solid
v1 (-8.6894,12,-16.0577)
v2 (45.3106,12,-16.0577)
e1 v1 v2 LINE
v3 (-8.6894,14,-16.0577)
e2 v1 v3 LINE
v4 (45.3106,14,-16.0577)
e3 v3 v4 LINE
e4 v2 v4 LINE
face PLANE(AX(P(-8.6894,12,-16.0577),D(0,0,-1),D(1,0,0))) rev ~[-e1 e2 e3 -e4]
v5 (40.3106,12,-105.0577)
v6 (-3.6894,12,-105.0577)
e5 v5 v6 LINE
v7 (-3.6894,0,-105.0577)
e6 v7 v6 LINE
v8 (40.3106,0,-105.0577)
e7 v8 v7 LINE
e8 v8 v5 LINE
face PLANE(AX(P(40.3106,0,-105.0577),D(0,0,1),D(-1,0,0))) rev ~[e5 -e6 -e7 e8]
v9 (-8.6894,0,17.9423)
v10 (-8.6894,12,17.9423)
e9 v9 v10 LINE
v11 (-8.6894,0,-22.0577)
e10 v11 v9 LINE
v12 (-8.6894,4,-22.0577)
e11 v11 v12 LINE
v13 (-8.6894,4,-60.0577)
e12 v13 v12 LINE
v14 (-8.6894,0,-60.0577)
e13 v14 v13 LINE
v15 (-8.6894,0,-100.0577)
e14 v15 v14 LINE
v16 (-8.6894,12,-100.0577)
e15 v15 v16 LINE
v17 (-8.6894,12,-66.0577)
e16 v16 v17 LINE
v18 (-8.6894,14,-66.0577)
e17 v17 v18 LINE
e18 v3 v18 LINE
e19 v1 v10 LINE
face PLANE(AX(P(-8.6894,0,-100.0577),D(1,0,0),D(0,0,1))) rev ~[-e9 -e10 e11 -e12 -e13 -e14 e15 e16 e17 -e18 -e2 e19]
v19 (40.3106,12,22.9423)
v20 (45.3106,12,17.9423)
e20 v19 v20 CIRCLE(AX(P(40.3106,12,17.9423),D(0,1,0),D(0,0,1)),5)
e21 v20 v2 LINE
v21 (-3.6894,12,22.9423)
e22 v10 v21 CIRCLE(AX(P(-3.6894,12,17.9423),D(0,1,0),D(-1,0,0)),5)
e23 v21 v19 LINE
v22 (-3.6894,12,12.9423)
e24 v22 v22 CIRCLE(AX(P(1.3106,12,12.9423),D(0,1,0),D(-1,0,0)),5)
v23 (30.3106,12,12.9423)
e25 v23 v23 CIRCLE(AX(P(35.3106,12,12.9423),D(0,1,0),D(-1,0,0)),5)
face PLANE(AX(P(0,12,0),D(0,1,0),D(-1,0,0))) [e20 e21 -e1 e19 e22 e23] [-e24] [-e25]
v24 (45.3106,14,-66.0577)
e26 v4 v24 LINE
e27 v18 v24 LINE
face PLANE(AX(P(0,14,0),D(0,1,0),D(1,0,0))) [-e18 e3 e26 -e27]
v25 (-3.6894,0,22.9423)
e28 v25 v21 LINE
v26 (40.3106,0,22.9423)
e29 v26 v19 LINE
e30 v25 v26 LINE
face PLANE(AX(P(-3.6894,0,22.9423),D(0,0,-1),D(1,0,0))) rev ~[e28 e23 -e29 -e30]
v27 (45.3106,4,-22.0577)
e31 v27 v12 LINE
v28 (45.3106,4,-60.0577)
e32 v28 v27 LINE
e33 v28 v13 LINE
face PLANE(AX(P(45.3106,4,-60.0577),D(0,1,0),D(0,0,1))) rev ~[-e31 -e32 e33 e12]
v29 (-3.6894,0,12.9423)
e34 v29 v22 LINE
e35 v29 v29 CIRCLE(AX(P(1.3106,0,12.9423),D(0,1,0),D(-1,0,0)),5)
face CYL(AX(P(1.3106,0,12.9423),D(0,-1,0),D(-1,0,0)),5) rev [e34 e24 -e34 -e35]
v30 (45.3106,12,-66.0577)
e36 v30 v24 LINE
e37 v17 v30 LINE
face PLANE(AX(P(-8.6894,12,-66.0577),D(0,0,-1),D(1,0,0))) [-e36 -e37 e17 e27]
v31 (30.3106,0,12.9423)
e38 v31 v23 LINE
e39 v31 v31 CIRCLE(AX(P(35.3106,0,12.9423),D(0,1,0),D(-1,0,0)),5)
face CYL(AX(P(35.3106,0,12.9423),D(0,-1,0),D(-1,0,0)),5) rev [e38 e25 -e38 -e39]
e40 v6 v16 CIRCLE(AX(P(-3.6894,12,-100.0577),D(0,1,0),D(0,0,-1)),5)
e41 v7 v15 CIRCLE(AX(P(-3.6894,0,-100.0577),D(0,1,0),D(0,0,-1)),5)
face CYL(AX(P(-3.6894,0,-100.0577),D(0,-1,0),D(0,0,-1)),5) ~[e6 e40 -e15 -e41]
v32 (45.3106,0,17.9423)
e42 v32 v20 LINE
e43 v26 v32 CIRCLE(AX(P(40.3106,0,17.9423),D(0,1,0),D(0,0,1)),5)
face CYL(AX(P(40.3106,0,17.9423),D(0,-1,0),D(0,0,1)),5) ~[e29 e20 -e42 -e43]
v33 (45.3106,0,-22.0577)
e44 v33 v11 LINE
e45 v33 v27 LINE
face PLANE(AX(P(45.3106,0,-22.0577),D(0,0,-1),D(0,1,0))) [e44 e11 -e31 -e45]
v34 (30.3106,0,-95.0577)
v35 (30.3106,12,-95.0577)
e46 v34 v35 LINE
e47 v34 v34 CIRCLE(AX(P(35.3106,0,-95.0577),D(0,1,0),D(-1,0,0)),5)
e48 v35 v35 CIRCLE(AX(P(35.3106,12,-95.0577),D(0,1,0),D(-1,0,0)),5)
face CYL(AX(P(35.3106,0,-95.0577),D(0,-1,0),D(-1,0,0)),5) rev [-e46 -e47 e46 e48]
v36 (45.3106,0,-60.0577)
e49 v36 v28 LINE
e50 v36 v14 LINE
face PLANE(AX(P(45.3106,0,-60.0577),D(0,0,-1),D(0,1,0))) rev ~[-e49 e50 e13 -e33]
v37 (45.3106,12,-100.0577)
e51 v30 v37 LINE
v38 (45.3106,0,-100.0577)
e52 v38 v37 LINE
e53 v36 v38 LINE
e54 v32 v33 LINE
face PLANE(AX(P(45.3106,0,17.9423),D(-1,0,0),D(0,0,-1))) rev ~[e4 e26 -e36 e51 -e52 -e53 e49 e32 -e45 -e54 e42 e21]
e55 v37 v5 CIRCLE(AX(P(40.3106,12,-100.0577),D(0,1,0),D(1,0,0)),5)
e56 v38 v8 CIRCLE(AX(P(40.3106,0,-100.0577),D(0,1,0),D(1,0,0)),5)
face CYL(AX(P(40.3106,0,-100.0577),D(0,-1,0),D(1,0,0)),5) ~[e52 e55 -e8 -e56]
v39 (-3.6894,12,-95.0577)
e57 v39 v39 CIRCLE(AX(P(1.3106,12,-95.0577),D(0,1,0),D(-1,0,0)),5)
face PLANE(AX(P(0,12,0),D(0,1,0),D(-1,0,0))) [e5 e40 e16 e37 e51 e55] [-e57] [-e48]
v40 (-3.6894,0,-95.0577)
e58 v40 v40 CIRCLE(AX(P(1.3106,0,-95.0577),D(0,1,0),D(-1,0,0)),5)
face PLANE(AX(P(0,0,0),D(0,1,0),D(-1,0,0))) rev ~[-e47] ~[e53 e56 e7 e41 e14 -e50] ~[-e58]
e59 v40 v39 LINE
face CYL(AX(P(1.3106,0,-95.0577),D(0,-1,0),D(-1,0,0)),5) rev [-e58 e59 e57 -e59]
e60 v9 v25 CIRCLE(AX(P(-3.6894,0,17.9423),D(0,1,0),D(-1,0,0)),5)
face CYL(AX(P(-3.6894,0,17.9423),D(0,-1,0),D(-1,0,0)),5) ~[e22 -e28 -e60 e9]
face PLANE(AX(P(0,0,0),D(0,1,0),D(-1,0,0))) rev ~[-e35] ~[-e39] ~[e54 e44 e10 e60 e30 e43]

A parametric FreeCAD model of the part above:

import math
import FreeCAD as App
import Part
import Sketcher
Q = App.Units.Quantity

doc = App.newDocument("Part")
body = doc.addObject("PartDesign::Body", "Body")

# Sketch on XZ plane
sketch1 = doc.addObject("Sketcher::SketchObject", "Sketch")
body.addObject(sketch1)
sketch1.AttachmentSupport = (doc.XZ_Plane, [""])
sketch1.MapMode = "FlatFace"
sketch1.addGeometry([
    Part.ArcOfCircle(Part.Circle(App.Vector(-3.7, 17.9, 0), App.Vector(0, 0, 1), 5), math.radians(90), math.radians(180)),  # 0
    Part.LineSegment(App.Vector(-3.7, 22.9, 0), App.Vector(40.3, 22.9, 0)),  # 1
    Part.ArcOfCircle(Part.Circle(App.Vector(40.3, 17.9, 0), App.Vector(0, 0, 1), 5), math.radians(0), math.radians(90)),  # 2
    Part.LineSegment(App.Vector(45.3, 17.9, 0), App.Vector(45.3, -100.1, 0)),  # 3
    Part.ArcOfCircle(Part.Circle(App.Vector(40.3, -100.1, 0), App.Vector(0, 0, 1), 5), math.radians(-90), math.radians(0)),  # 4
    Part.LineSegment(App.Vector(40.3, -105.1, 0), App.Vector(-3.7, -105.1, 0)),  # 5
    Part.ArcOfCircle(Part.Circle(App.Vector(-3.7, -100.1, 0), App.Vector(0, 0, 1), 5), math.radians(180), math.radians(270)),  # 6
    Part.LineSegment(App.Vector(-8.7, -100.1, 0), App.Vector(-8.7, 17.9, 0)),  # 7
    Part.Circle(App.Vector(35.3, -95.1, 0), App.Vector(0, 0, 1), 5),  # 8
    Part.Circle(App.Vector(1.3, -95.1, 0), App.Vector(0, 0, 1), 5),  # 9
    Part.Circle(App.Vector(35.3, 12.9, 0), App.Vector(0, 0, 1), 5),  # 10
    Part.Circle(App.Vector(1.3, 12.9, 0), App.Vector(0, 0, 1), 5),  # 11
], False)
sketch1.addConstraint([
    Sketcher.Constraint("Tangent", 0, 1, 1, 1),
    Sketcher.Constraint("Tangent", 1, 2, 2, 2),
    Sketcher.Constraint("Tangent", 2, 1, 3, 1),
    Sketcher.Constraint("Tangent", 3, 2, 4, 2),
    Sketcher.Constraint("Tangent", 4, 1, 5, 1),
    Sketcher.Constraint("Tangent", 5, 2, 6, 2),
    Sketcher.Constraint("Tangent", 6, 1, 7, 1),
    Sketcher.Constraint("Tangent", 7, 2, 0, 2),
    Sketcher.Constraint("Horizontal", 1),
    Sketcher.Constraint("Vertical", 3),
    Sketcher.Constraint("Horizontal", 5),
    Sketcher.Constraint("Vertical", 7),
    Sketcher.Constraint("Equal", 0, 2),
    Sketcher.Constraint("Equal", 2, 4),
    Sketcher.Constraint("Equal", 4, 6),
    Sketcher.Constraint("Equal", 6, 8),
    Sketcher.Constraint("Equal", 8, 9),
    Sketcher.Constraint("Equal", 9, 10),
    Sketcher.Constraint("Equal", 10, 11),
    Sketcher.Constraint("Horizontal", 8, 3, 9, 3),
    Sketcher.Constraint("Horizontal", 10, 3, 11, 3),
    Sketcher.Constraint("Vertical", 8, 3, 10, 3),
    Sketcher.Constraint("Vertical", 9, 3, 11, 3),
    Sketcher.Constraint("Diameter", 8, Q("10 mm")),
    Sketcher.Constraint("DistanceX", 8, 3, 4, 3, Q("5 mm")),
    Sketcher.Constraint("DistanceY", 4, 3, 8, 3, Q("5 mm")),
    Sketcher.Constraint("DistanceX", 6, 3, 9, 3, Q("5 mm")),
    Sketcher.Constraint("DistanceY", 10, 3, 2, 3, Q("5 mm")),
    Sketcher.Constraint("DistanceX", 1, 1, 1, 2, Q("44 mm")),
    Sketcher.Constraint("DistanceY", 3, 2, 3, 1, Q("118 mm")),
    Sketcher.Constraint("DistanceX", 0, 3, -1, 1, Q("3.6894 mm")),
    Sketcher.Constraint("DistanceY", -1, 1, 0, 3, Q("17.9423 mm")),
])
pad1 = doc.addObject("PartDesign::Pad", "Pad")
body.addObject(pad1)
pad1.Profile = sketch1
pad1.Length = 12
pad1.Reversed = True

# Sketch on XZ plane
sketch2 = doc.addObject("Sketcher::SketchObject", "Sketch001")
body.addObject(sketch2)
sketch2.AttachmentSupport = (doc.XZ_Plane, [""])
sketch2.MapMode = "FlatFace"
sketch2.AttachmentOffset = App.Placement(App.Vector(0, 0, -12), App.Rotation())
sketch2.addGeometry([
    Part.LineSegment(App.Vector(45, -66, 0), App.Vector(-9, -66, 0)),
    Part.LineSegment(App.Vector(-9, -66, 0), App.Vector(-9, -16, 0)),
    Part.LineSegment(App.Vector(-9, -16, 0), App.Vector(45, -16, 0)),
    Part.LineSegment(App.Vector(45, -16, 0), App.Vector(45, -66, 0)),
], False)
sketch2.addConstraint([
    Sketcher.Constraint("Coincident", 0, 2, 1, 1),
    Sketcher.Constraint("Coincident", 1, 2, 2, 1),
    Sketcher.Constraint("Coincident", 2, 2, 3, 1),
    Sketcher.Constraint("Coincident", 3, 2, 0, 1),
    Sketcher.Constraint("Horizontal", 0),
    Sketcher.Constraint("Vertical", 1),
    Sketcher.Constraint("Horizontal", 2),
    Sketcher.Constraint("Vertical", 3),
    Sketcher.Constraint("DistanceX", 0, 2, 0, 1, Q("54 mm")),
    Sketcher.Constraint("DistanceY", 1, 1, 1, 2, Q("50 mm")),
    Sketcher.Constraint("DistanceX", 0, 2, -1, 1, Q("8.6894 mm")),
    Sketcher.Constraint("DistanceY", 0, 2, -1, 1, Q("66.0577 mm")),
])
pad2 = doc.addObject("PartDesign::Pad", "Pad001")
body.addObject(pad2)
pad2.Profile = sketch2
pad2.Length = 2
pad2.Reversed = True

# Sketch on YZ plane
sketch3 = doc.addObject("Sketcher::SketchObject", "Sketch002")
body.addObject(sketch3)
sketch3.AttachmentSupport = (doc.YZ_Plane, [""])
sketch3.MapMode = "FlatFace"
sketch3.AttachmentOffset = App.Placement(App.Vector(0, 0, 45.3106), App.Rotation())
sketch3.addGeometry([
    Part.LineSegment(App.Vector(0, -22.1, 0), App.Vector(0, -60.1, 0)),
    Part.LineSegment(App.Vector(0, -60.1, 0), App.Vector(4, -60.1, 0)),
    Part.LineSegment(App.Vector(4, -60.1, 0), App.Vector(4, -22.1, 0)),
    Part.LineSegment(App.Vector(4, -22.1, 0), App.Vector(0, -22.1, 0)),
], False)
sketch3.addConstraint([
    Sketcher.Constraint("Coincident", 0, 2, 1, 1),
    Sketcher.Constraint("Coincident", 1, 2, 2, 1),
    Sketcher.Constraint("Coincident", 2, 2, 3, 1),
    Sketcher.Constraint("Coincident", 3, 2, 0, 1),
    Sketcher.Constraint("Vertical", 0),
    Sketcher.Constraint("Horizontal", 1),
    Sketcher.Constraint("Vertical", 2),
    Sketcher.Constraint("Horizontal", 3),
    Sketcher.Constraint("PointOnObject", 0, 2, -2),
    Sketcher.Constraint("DistanceX", 1, 1, 1, 2, Q("4 mm")),
    Sketcher.Constraint("DistanceY", 0, 2, 0, 1, Q("38 mm")),
    Sketcher.Constraint("DistanceY", 0, 2, -1, 1, Q("60.0577 mm")),
])
pocket1 = doc.addObject("PartDesign::Pocket", "Pocket")
body.addObject(pocket1)
pocket1.Profile = sketch3
pocket1.Length = 54

doc.recompute()
